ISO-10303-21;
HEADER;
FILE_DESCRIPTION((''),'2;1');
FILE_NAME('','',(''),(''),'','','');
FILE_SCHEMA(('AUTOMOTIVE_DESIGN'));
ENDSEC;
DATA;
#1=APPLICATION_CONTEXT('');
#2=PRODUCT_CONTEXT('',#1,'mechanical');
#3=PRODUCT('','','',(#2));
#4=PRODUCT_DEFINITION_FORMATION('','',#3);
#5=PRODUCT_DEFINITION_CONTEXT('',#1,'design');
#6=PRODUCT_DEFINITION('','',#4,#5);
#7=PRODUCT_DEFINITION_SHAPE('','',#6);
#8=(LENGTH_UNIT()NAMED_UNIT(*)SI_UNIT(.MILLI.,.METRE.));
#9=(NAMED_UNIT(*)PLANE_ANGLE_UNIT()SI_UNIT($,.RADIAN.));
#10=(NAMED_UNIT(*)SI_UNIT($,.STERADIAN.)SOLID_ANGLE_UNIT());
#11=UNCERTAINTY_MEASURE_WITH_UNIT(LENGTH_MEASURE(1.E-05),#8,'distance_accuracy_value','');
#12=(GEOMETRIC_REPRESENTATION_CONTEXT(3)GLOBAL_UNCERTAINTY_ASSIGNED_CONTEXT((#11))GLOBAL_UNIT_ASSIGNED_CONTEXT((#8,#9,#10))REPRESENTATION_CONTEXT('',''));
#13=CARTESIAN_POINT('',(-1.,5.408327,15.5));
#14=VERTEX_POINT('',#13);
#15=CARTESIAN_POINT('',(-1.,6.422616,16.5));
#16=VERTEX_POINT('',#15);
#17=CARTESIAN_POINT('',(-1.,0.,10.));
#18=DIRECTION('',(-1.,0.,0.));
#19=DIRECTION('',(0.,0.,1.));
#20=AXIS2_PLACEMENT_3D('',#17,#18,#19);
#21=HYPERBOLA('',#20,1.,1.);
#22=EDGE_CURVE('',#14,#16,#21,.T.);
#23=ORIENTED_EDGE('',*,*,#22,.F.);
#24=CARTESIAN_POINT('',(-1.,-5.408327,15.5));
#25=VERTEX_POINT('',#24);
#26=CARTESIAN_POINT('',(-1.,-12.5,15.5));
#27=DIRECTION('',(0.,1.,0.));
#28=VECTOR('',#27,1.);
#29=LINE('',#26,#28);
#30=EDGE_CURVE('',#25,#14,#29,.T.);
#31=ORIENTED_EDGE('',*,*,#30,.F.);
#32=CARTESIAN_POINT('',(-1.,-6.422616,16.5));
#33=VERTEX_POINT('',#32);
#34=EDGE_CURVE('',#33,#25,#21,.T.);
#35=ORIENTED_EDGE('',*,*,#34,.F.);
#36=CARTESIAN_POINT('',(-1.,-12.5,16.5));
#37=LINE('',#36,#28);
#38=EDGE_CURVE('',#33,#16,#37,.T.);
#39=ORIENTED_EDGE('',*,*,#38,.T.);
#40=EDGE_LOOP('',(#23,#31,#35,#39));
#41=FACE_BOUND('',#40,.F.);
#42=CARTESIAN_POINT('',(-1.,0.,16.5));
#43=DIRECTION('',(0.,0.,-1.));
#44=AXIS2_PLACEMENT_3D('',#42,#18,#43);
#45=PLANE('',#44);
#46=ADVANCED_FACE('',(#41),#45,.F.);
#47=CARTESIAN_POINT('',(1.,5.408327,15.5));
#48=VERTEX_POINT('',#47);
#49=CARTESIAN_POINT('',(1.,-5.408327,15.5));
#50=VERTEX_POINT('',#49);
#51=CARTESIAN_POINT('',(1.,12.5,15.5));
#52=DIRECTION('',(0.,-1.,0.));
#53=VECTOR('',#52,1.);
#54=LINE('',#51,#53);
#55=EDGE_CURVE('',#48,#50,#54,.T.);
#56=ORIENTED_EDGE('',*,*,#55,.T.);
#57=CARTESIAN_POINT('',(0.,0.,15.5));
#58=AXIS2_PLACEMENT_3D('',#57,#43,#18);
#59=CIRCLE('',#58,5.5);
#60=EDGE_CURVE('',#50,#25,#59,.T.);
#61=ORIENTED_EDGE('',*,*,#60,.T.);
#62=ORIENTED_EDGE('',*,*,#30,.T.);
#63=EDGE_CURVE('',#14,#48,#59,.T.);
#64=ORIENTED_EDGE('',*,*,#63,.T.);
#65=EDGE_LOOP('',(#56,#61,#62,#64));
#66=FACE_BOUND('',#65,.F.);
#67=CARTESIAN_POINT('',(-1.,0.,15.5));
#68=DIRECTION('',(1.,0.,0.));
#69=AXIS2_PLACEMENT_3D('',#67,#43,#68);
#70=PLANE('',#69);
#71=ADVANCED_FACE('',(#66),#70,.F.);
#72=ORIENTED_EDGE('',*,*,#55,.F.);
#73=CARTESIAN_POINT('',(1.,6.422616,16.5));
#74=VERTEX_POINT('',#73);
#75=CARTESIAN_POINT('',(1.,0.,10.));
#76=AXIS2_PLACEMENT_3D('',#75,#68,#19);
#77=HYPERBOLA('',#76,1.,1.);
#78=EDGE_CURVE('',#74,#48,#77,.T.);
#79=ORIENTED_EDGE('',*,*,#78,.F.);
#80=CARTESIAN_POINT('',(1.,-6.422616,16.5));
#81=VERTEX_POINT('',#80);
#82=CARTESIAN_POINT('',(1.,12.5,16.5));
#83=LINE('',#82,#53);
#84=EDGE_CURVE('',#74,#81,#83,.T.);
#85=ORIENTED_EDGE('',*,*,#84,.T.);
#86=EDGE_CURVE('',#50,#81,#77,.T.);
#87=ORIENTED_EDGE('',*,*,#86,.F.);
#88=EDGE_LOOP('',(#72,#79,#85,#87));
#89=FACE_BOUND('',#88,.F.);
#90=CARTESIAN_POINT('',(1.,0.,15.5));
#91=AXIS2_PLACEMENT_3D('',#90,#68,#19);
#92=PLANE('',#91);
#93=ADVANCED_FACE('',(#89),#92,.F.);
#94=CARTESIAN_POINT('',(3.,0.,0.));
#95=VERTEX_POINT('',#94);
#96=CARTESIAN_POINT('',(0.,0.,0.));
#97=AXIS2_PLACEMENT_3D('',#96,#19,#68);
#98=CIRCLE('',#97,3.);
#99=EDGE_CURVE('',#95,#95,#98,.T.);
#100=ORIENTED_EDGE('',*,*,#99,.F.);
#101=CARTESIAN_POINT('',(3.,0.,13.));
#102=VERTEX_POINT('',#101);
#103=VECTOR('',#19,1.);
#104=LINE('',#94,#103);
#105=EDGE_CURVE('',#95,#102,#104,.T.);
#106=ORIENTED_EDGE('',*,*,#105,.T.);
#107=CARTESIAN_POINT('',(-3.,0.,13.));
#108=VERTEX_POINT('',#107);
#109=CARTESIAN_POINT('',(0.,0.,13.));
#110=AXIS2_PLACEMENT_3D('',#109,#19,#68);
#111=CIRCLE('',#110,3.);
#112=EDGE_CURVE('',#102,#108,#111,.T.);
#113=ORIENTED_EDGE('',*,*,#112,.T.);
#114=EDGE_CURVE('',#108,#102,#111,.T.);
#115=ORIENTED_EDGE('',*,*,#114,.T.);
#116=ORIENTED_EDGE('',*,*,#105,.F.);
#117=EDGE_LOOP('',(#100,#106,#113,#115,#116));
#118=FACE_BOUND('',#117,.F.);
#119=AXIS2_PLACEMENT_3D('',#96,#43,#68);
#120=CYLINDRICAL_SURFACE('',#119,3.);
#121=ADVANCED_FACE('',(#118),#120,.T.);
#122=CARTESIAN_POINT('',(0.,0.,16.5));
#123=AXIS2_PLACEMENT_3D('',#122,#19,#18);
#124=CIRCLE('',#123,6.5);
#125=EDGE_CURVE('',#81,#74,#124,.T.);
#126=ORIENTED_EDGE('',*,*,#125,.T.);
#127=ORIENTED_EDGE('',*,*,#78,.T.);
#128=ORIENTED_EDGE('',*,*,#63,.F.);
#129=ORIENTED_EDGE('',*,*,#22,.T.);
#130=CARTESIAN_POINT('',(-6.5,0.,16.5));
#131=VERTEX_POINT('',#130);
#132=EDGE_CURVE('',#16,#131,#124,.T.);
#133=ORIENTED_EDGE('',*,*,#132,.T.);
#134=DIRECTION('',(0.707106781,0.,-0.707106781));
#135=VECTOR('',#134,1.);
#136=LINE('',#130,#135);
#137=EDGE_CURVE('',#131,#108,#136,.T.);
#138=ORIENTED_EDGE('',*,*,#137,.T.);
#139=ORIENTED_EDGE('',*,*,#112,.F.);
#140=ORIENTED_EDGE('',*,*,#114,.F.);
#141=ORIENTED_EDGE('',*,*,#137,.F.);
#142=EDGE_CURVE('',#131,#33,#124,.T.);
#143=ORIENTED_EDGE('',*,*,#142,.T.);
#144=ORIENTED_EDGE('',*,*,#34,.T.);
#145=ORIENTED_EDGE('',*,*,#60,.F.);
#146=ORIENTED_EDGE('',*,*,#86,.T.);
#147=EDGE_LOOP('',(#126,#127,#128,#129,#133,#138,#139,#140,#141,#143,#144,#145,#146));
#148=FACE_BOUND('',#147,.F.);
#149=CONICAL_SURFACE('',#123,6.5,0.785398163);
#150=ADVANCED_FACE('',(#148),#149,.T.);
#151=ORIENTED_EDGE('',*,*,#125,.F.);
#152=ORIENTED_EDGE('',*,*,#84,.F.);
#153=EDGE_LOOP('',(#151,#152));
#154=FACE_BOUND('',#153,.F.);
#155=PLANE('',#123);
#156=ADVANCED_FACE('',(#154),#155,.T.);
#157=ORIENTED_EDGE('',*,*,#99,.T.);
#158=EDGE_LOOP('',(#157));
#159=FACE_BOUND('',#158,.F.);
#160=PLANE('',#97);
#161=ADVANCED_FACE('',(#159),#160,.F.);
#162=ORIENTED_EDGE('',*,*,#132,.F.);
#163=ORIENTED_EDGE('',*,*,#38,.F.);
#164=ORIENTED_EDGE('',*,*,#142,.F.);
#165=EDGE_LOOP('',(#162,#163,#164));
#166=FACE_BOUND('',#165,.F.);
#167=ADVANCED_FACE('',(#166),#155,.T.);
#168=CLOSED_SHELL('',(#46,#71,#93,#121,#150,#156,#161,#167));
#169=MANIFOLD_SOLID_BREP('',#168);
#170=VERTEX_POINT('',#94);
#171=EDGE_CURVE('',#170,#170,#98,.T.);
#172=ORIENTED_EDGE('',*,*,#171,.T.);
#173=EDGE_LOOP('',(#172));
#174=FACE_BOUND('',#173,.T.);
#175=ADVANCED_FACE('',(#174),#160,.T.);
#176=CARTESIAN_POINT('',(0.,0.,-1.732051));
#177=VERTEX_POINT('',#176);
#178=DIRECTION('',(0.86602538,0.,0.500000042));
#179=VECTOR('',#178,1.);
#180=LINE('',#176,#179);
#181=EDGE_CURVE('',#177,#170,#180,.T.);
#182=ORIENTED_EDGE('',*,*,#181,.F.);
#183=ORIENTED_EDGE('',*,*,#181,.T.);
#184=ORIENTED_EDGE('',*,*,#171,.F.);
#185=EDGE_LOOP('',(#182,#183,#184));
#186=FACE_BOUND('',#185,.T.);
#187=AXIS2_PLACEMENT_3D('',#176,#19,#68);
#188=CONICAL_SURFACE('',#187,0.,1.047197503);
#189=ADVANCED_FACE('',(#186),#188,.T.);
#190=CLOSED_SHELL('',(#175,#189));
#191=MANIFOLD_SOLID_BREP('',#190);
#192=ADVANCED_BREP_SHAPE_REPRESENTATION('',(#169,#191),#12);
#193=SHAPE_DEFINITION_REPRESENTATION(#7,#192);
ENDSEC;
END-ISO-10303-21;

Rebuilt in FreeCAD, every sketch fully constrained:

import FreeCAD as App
import Part
import Sketcher

V = App.Vector
Q = App.Units.Quantity


def add_polygon(sketch, points):
    """Adds a closed chain of lines whose ends are joined by coincident constraints."""
    first, n = sketch.GeometryCount, len(points)
    for a, b in zip(points, points[1:] + points[:1]):
        sketch.addGeometry(Part.LineSegment(App.Vector(*a, 0), App.Vector(*b, 0)), False)
    for i in range(n):
        sketch.addConstraint(Sketcher.Constraint("Coincident", first + i, 2, first + (i + 1) % n, 1))

doc = App.newDocument("Part")
body = doc.addObject("PartDesign::Body", "Body")

# Sketch on XY plane
sketch1 = body.newObject("Sketcher::SketchObject", "Sketch")
sketch1.AttachmentSupport = (doc.getObject("XY_Plane"), [""])
sketch1.MapMode = "FlatFace"
sketch1.addGeometry(Part.Circle(V(0, 0, 0), V(0, 0, 1), 3), False)
sketch1.addConstraint([
    Sketcher.Constraint("Coincident", 0, 3, -1, 1),
    Sketcher.Constraint("Diameter", 0, Q("6 mm")),
])
pad1 = body.newObject("PartDesign::Pad", "Pad")
pad1.Profile = sketch1
pad1.Length = 13

# Sketch on XZ plane
sketch2 = body.newObject("Sketcher::SketchObject", "Sketch001")
sketch2.AttachmentSupport = (doc.getObject("XZ_Plane"), [""])
sketch2.MapMode = "FlatFace"
add_polygon(sketch2, [(-3, 13), (0, 13), (0, 16.5), (-6.5, 16.5)])  # lines 0-3
sketch2.addConstraint([
    Sketcher.Constraint("Horizontal", 0),
    Sketcher.Constraint("Vertical", 1),
    Sketcher.Constraint("Horizontal", 2),
    Sketcher.Constraint("PointOnObject", 0, 2, -2),
    Sketcher.Constraint("DistanceX", 0, 1, 0, 2, Q("3 mm")),
    Sketcher.Constraint("Angle", 3, Q("-45 deg")),
    Sketcher.Constraint("DistanceX", 2, 2, 2, 1, Q("6.5 mm")),
    Sketcher.Constraint("DistanceY", -1, 1, 0, 2, Q("13 mm")),
])
revolution = body.newObject("PartDesign::Revolution", "Revolution")
revolution.Profile = sketch2
revolution.ReferenceAxis = (sketch2, ["V_Axis"])
revolution.Angle = 360

# Sketch on XZ plane
sketch3 = body.newObject("Sketcher::SketchObject", "Sketch002")
sketch3.AttachmentSupport = (doc.getObject("XZ_Plane"), [""])
sketch3.MapMode = "FlatFace"
add_polygon(sketch3, [(-1, 15.5), (1, 15.5), (1, 16.5), (-1, 16.5)])  # lines 0-3
sketch3.addConstraint([
    Sketcher.Constraint("Horizontal", 0),
    Sketcher.Constraint("Vertical", 1),
    Sketcher.Constraint("Horizontal", 2),
    Sketcher.Constraint("Vertical", 3),
    Sketcher.Constraint("DistanceX", 0, 1, 0, 2, Q("2 mm")),
    Sketcher.Constraint("DistanceY", 1, 1, 1, 2, Q("1 mm")),
    Sketcher.Constraint("DistanceX", -1, 1, 0, 2, Q("1 mm")),
    Sketcher.Constraint("DistanceY", -1, 1, 0, 2, Q("15.5 mm")),
])
pocket1 = body.newObject("PartDesign::Pocket", "Pocket")
pocket1.Profile = sketch3
pocket1.Length = 25
pocket1.Midplane = True
body2 = doc.addObject("PartDesign::Body", "Body001")

# Sketch on XZ plane
sketch4 = body2.newObject("Sketcher::SketchObject", "Sketch003")
sketch4.AttachmentSupport = (doc.getObject("XZ_Plane001"), [""])
sketch4.MapMode = "FlatFace"
add_polygon(sketch4, [(3, 0), (0, 0), (0, -1.732051)])  # lines 0-2
sketch4.addConstraint([
    Sketcher.Constraint("Horizontal", 0),
    Sketcher.Constraint("Vertical", 1),
    Sketcher.Constraint("Coincident", 0, 2, -1, 1),
    Sketcher.Constraint("DistanceX", 0, 2, 0, 1, Q("3 mm")),
    Sketcher.Constraint("Angle", 2, Q("30.000003 deg")),
])
revolution2 = body2.newObject("PartDesign::Revolution", "Revolution001")
revolution2.Profile = sketch4
revolution2.ReferenceAxis = (sketch4, ["V_Axis"])
revolution2.Angle = 360

doc.recompute()
